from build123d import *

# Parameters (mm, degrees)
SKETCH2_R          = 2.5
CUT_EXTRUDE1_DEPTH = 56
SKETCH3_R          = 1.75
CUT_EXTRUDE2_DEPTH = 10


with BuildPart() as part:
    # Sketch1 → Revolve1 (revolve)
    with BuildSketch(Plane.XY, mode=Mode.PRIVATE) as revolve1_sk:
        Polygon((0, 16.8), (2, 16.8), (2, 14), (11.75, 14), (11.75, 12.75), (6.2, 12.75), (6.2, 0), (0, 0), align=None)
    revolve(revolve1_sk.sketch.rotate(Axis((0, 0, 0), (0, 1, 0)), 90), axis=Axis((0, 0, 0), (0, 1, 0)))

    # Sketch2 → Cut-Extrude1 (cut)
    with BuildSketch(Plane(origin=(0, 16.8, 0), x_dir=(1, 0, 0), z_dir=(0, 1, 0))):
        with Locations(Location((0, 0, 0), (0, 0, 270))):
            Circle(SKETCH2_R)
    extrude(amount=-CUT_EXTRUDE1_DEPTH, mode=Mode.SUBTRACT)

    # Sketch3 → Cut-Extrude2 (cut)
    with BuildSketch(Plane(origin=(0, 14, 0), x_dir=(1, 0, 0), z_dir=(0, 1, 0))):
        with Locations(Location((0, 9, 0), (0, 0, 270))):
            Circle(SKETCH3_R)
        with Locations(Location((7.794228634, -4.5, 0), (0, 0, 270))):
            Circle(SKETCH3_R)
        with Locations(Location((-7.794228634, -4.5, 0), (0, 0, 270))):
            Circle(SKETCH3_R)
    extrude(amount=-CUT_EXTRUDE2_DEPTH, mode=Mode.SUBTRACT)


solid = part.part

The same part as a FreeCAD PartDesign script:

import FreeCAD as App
import Part
import Sketcher
Q = App.Units.Quantity

doc = App.newDocument("Part")
params = doc.addObject("Spreadsheet::Sheet", "Params")
for row, (alias, value) in enumerate([
    ("sketch1_width", "2 mm"),
    ("sketch1_width2", "6.2 mm"),
    ("sketch1_height", "16.8 mm"),
    ("sketch1_height2", "2.8 mm"),
    ("sketch1_width3", "5.55 mm"),
    ("revolution_angle", "360 deg"),
    ("sketch2_diameter", "5 mm"),
    ("pocket1_length", "56 mm"),
    ("sketch3_diameter", "3.5 mm"),
    ("pocket2_length", "10 mm"),
], start=1):
    params.set(f"A{row}", alias)
    params.set(f"B{row}", "=" + value)
    params.setAlias(f"B{row}", alias)

body = doc.addObject("PartDesign::Body", "Body")

sketch1 = body.newObject("Sketcher::SketchObject", "Sketch")
sketch1.AttachmentSupport = (doc.getObject("XY_Plane"), [""])
sketch1.MapMode = "FlatFace"
sketch1.addGeometry([
    Part.LineSegment(App.Vector(2, 16.8, 0), App.Vector(0, 16.8, 0)),
    Part.LineSegment(App.Vector(0, 16.8, 0), App.Vector(0, 0, 0)),
    Part.LineSegment(App.Vector(0, 0, 0), App.Vector(6.2, 0, 0)),
    Part.LineSegment(App.Vector(6.2, 0, 0), App.Vector(6.2, 12.8, 0)),
    Part.LineSegment(App.Vector(6.2, 12.8, 0), App.Vector(11.8, 12.8, 0)),
    Part.LineSegment(App.Vector(11.8, 12.8, 0), App.Vector(11.8, 14, 0)),
    Part.LineSegment(App.Vector(11.8, 14, 0), App.Vector(2, 14, 0)),
    Part.LineSegment(App.Vector(2, 14, 0), App.Vector(2, 16.8, 0)),
], False)
sketch1.addConstraint([
    Sketcher.Constraint("Coincident", 0, 2, 1, 1),
    Sketcher.Constraint("Coincident", 1, 2, 2, 1),
    Sketcher.Constraint("Coincident", 2, 2, 3, 1),
    Sketcher.Constraint("Coincident", 3, 2, 4, 1),
    Sketcher.Constraint("Coincident", 4, 2, 5, 1),
    Sketcher.Constraint("Coincident", 5, 2, 6, 1),
    Sketcher.Constraint("Coincident", 6, 2, 7, 1),
    Sketcher.Constraint("Coincident", 7, 2, 0, 1),
    Sketcher.Constraint("Horizontal", 0),
    Sketcher.Constraint("Vertical", 1),
    Sketcher.Constraint("Horizontal", 2),
    Sketcher.Constraint("Vertical", 3),
    Sketcher.Constraint("Horizontal", 4),
    Sketcher.Constraint("Vertical", 5),
    Sketcher.Constraint("Horizontal", 6),
    Sketcher.Constraint("Vertical", 7),
    Sketcher.Constraint("Coincident", 1, 2, -1, 1),
    Sketcher.Constraint("DistanceX", 0, 2, 0, 1, Q("2 mm")),
    Sketcher.Constraint("DistanceX", 2, 1, 2, 2, Q("6.2 mm")),
    Sketcher.Constraint("DistanceY", 1, 2, 1, 1, Q("16.8 mm")),
    Sketcher.Constraint("DistanceY", 7, 1, 7, 2, Q("2.8 mm")),
    Sketcher.Constraint("DistanceX", 4, 1, 4, 2, Q("5.55 mm")),
    Sketcher.Constraint("DistanceY", 3, 1, 3, 2, Q("12.75 mm")),
])
sketch1.setExpression("Constraints[17]", "Params.sketch1_width")
sketch1.setExpression("Constraints[18]", "Params.sketch1_width2")
sketch1.setExpression("Constraints[19]", "Params.sketch1_height")
sketch1.setExpression("Constraints[20]", "Params.sketch1_height2")
sketch1.setExpression("Constraints[21]", "Params.sketch1_width3")
revolution = body.newObject("PartDesign::Revolution", "Revolution")
revolution.Profile = sketch1
revolution.ReferenceAxis = (sketch1, ["V_Axis"])
revolution.setExpression("Angle", "Params.revolution_angle")

sketch2 = body.newObject("Sketcher::SketchObject", "Sketch001")
sketch2.AttachmentSupport = (doc.getObject("XZ_Plane"), [""])
sketch2.MapMode = "FlatFace"
sketch2.AttachmentOffset = App.Placement(App.Vector(0, 0, -16.8), App.Rotation())
sketch2.addGeometry(Part.Circle(App.Vector(0, 0, 0), App.Vector(0, 0, 1), 2.5), False)
sketch2.addConstraint([
    Sketcher.Constraint("Coincident", 0, 3, -1, 1),
    Sketcher.Constraint("Diameter", 0, Q("5 mm")),
])
sketch2.setExpression("Constraints[1]", "Params.sketch2_diameter")
pocket1 = body.newObject("PartDesign::Pocket", "Pocket")
pocket1.Profile = sketch2
pocket1.setExpression("Length", "Params.pocket1_length")
pocket1.Reversed = True

sketch3 = body.newObject("Sketcher::SketchObject", "Sketch002")
sketch3.AttachmentSupport = (doc.getObject("XZ_Plane"), [""])
sketch3.MapMode = "FlatFace"
sketch3.AttachmentOffset = App.Placement(App.Vector(0, 0, -14), App.Rotation())
sketch3.addGeometry([
    Part.Circle(App.Vector(0, -9, 0), App.Vector(0, 0, 1), 1.8),
    Part.Circle(App.Vector(7.8, 4.5, 0), App.Vector(0, 0, 1), 1.8),
    Part.Circle(App.Vector(-7.8, 4.5, 0), App.Vector(0, 0, 1), 1.8),
], False)
sketch3.addConstraint([
    Sketcher.Constraint("Equal", 0, 1),
    Sketcher.Constraint("Equal", 1, 2),
    Sketcher.Constraint("Symmetric", 1, 3, 2, 3, -2),
    Sketcher.Constraint("PointOnObject", 0, 3, -2),
    Sketcher.Constraint("Diameter", 0, Q("3.5 mm")),
    Sketcher.Constraint("DistanceY", 0, 3, -1, 1, Q("9 mm")),
    Sketcher.Constraint("DistanceY", -1, 1, 1, 3, Q("4.5 mm")),
    Sketcher.Constraint("DistanceX", -1, 1, 1, 3, Q("7.794229 mm")),
])
sketch3.setExpression("Constraints[4]", "Params.sketch3_diameter")
pocket2 = body.newObject("PartDesign::Pocket", "Pocket001")
pocket2.Profile = sketch3
pocket2.setExpression("Length", "Params.pocket2_length")
pocket2.Reversed = True

doc.recompute()
